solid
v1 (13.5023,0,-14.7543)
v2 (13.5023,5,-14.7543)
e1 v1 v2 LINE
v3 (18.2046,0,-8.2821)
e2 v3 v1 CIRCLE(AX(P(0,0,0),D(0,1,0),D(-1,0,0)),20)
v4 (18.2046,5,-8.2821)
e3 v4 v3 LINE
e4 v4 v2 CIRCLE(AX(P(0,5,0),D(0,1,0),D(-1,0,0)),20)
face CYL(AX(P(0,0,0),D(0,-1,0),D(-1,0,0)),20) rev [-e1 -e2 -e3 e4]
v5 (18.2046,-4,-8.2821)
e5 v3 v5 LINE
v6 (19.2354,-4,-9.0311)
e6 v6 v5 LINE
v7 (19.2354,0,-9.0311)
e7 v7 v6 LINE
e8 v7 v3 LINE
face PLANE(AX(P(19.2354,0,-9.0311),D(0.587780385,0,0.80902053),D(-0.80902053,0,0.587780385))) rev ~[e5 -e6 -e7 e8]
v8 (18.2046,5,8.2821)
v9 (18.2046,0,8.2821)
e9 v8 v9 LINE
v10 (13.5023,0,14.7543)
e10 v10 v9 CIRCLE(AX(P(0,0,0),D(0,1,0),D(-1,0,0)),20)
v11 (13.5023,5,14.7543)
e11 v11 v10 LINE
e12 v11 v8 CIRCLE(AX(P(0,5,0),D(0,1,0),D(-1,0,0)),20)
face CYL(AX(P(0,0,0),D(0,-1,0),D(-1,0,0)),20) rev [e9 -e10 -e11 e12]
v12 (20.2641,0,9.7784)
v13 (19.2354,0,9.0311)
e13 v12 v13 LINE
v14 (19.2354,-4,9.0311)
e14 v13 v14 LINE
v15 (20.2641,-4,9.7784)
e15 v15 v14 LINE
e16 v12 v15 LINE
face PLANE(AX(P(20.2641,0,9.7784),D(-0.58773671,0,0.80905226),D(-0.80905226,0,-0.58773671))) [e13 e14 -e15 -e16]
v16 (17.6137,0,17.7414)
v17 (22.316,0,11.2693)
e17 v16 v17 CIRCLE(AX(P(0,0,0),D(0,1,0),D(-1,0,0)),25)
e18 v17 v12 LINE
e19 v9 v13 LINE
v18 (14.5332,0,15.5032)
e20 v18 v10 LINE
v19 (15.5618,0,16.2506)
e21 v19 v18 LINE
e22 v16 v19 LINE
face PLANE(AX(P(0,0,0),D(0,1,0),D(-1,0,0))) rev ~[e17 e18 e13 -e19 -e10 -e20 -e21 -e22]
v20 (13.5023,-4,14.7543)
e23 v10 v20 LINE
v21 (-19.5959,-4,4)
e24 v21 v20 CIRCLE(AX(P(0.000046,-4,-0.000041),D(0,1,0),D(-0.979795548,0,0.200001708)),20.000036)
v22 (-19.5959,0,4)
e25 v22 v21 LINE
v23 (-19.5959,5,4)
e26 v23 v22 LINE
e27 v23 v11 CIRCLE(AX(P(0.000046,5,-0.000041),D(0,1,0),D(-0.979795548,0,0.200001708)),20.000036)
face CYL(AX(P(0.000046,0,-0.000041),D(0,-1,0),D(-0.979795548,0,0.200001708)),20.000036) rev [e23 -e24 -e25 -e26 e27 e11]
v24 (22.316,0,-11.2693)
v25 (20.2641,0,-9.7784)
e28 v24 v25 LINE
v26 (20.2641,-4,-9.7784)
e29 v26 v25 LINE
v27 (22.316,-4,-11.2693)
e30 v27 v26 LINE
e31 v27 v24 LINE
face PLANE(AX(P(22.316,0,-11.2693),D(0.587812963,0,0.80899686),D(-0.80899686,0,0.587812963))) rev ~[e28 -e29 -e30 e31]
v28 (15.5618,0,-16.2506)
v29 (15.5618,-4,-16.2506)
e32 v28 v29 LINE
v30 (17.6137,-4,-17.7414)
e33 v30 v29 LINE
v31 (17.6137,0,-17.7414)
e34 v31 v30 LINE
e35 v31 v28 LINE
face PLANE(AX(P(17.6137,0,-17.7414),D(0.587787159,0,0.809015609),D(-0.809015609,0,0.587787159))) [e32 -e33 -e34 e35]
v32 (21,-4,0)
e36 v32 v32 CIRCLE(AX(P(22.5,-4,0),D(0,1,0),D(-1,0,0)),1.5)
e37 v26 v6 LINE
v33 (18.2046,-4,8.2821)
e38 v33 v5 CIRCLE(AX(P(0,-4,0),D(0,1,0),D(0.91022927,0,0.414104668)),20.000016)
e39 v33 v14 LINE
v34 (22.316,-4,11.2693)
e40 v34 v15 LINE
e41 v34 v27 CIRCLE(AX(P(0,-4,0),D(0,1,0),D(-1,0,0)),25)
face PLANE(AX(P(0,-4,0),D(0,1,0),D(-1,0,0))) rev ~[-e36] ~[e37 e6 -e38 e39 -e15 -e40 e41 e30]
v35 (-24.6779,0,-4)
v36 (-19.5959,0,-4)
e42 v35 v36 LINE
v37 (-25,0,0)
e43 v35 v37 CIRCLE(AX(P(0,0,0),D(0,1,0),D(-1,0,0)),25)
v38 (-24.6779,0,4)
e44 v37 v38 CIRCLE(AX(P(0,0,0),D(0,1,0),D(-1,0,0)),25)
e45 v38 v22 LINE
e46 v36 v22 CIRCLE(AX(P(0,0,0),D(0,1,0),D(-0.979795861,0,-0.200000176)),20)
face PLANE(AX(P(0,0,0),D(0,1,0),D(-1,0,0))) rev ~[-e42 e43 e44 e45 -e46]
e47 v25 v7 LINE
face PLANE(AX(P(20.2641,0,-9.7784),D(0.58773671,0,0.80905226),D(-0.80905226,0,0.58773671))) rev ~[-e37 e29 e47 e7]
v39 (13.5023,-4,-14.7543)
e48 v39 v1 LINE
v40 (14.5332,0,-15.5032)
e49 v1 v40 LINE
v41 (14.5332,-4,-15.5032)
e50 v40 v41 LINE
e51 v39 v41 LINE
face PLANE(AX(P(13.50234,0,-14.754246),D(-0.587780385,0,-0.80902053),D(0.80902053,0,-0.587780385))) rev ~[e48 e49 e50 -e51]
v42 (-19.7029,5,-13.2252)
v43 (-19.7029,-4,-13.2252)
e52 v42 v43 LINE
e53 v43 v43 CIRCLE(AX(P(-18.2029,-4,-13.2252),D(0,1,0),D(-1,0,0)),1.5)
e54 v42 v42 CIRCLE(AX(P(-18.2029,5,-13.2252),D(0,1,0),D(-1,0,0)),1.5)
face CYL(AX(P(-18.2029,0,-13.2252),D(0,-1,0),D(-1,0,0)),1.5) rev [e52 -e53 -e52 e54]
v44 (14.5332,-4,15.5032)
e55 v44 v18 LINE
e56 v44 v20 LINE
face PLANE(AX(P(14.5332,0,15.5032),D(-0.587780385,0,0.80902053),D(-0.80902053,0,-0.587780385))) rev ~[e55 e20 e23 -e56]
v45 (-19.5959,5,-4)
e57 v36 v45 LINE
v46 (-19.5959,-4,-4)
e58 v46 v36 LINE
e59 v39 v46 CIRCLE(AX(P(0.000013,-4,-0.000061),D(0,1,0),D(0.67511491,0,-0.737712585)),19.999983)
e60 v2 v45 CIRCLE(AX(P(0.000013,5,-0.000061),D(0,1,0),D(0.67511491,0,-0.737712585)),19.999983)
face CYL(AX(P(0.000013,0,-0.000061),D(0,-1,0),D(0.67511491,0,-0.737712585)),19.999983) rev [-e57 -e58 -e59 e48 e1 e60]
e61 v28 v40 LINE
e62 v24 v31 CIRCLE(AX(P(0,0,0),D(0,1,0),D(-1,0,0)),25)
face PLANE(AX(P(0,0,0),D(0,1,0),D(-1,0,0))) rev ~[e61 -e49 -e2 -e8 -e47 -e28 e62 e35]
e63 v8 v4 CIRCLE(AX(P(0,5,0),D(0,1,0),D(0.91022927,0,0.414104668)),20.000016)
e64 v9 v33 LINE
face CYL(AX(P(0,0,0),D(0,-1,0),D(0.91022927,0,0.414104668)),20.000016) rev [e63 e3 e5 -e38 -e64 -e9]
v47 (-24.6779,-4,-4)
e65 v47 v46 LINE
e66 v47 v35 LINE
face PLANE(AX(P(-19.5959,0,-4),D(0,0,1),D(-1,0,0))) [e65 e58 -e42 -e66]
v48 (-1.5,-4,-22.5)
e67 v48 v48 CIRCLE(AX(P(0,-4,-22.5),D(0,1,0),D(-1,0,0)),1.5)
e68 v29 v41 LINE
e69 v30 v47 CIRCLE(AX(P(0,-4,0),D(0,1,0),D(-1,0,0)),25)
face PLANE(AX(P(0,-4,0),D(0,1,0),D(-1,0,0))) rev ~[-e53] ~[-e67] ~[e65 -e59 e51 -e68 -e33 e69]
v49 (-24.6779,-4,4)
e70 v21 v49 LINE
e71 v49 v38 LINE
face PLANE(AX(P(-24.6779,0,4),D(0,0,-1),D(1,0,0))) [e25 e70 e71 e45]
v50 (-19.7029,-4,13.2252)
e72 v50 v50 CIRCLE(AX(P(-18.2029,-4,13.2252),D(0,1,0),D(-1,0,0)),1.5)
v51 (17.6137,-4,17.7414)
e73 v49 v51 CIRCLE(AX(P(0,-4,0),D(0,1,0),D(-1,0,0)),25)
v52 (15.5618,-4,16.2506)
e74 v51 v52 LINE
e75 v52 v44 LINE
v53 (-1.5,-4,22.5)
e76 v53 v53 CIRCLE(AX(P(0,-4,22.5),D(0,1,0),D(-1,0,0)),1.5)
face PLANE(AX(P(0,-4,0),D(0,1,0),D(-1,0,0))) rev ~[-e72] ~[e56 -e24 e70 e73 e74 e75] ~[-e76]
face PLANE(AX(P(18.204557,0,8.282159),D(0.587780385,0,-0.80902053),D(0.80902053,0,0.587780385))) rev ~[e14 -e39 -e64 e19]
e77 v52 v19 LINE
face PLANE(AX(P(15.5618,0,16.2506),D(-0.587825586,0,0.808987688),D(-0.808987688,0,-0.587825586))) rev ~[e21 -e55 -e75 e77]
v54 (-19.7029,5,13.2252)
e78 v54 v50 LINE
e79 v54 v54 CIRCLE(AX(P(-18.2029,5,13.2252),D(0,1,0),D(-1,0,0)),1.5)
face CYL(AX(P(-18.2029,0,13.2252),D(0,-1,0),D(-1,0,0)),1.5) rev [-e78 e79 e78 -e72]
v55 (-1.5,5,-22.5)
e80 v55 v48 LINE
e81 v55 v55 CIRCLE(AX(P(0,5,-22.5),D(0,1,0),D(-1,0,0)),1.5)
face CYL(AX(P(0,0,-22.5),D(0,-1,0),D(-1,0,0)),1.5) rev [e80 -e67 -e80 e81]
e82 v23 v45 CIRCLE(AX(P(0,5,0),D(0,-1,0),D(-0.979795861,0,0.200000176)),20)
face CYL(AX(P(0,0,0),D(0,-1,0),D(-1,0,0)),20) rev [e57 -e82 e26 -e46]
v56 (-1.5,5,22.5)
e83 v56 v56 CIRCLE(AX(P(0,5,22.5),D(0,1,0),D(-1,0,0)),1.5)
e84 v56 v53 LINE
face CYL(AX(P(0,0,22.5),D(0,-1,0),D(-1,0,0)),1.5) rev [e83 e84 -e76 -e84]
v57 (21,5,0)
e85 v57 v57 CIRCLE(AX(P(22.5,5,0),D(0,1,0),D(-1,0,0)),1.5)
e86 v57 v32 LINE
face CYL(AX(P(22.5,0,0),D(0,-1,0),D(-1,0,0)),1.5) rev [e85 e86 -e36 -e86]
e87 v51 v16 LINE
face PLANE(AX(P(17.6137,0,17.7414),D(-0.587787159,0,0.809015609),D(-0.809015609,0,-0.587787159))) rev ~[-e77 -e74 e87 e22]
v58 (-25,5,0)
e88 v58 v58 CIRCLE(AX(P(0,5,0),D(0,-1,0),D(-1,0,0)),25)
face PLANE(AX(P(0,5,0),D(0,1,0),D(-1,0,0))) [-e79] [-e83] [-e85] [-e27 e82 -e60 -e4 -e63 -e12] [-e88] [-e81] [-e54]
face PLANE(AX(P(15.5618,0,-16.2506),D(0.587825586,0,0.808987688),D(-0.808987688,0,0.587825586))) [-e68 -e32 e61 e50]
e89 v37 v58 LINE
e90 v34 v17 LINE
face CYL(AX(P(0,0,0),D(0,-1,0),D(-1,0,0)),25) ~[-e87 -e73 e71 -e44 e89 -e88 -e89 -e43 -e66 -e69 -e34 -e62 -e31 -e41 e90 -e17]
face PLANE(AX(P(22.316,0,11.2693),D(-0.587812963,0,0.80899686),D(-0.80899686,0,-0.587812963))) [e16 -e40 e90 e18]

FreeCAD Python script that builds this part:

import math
import FreeCAD as App
import Part
import Sketcher
from FreeCAD import Vector
Q = App.Units.Quantity

doc = App.newDocument("Part")
params = doc.addObject("Spreadsheet::Sheet", "Params")
for row, (alias, value) in enumerate([
    ("sketch1_diameter", "3 mm"),
    ("sketch1_radius", "25 mm"),
    ("sketch1_radius2", "20 mm"),
    ("pad1_length", "5 mm"),
    ("pad1_length2", "4 mm"),
    ("sketch2_radius", "25 mm"),
    ("sketch2_radius2", "20 mm"),
    ("pad2_length", "5 mm"),
], start=1):
    params.set(f"A{row}", alias)
    params.set(f"B{row}", "=" + value)
    params.setAlias(f"B{row}", alias)

body = doc.addObject("PartDesign::Body", "Body")
body.AllowCompound = True

# Sketch on XZ plane
sketch1 = body.newObject("Sketcher::SketchObject", "Sketch")
sketch1.AttachmentSupport = (doc.getObject("XZ_Plane"), [""])
sketch1.MapMode = "FlatFace"
sketch1.addGeometry(Part.LineSegment(Vector(-19.6, 4, 0), Vector(-24.7, 4, 0)), False)
sketch1.addGeometry(Part.ArcOfCircle(Part.Circle(Vector(0, 0, 0), Vector(0, 0, 1), 25), math.radians(45), math.radians(171)), False)
sketch1.addGeometry(Part.LineSegment(Vector(17.6, 17.7, 0), Vector(15.6, 16.3, 0)), False)
sketch1.addGeometry(Part.LineSegment(Vector(15.6, 16.3, 0), Vector(14.5, 15.5, 0)), False)
sketch1.addGeometry(Part.LineSegment(Vector(14.5, 15.5, 0), Vector(13.5, 14.8, 0)), False)
sketch1.addGeometry(Part.ArcOfCircle(Part.Circle(Vector(0, 0, 0), Vector(0, 0, 1), 20), math.radians(48), math.radians(168)), False)
sketch1.addGeometry(Part.Circle(Vector(0, 22.5, 0), Vector(0, 0, 1), 1.5), False)
sketch1.addGeometry(Part.Circle(Vector(-18.2, 13.2, 0), Vector(0, 0, 1), 1.5), False)
sketch1.addGeometry(Part.ArcOfCircle(Part.Circle(Vector(0, 0, 0), Vector(0, 0, 1), 25), math.radians(-171), math.radians(-45)), False)
sketch1.addGeometry(Part.LineSegment(Vector(-24.7, -4, 0), Vector(-19.6, -4, 0)), False)
sketch1.addGeometry(Part.ArcOfCircle(Part.Circle(Vector(0, 0, 0), Vector(0, 0, 1), 20), math.radians(-168), math.radians(-48)), False)
sketch1.addGeometry(Part.LineSegment(Vector(13.5, -14.8, 0), Vector(14.5, -15.5, 0)), False)
sketch1.addGeometry(Part.LineSegment(Vector(14.5, -15.5, 0), Vector(15.6, -16.3, 0)), False)
sketch1.addGeometry(Part.LineSegment(Vector(15.6, -16.3, 0), Vector(17.6, -17.7, 0)), False)
sketch1.addGeometry(Part.Circle(Vector(0, -22.5, 0), Vector(0, 0, 1), 1.5), False)
sketch1.addGeometry(Part.Circle(Vector(-18.2, -13.2, 0), Vector(0, 0, 1), 1.5), False)
sketch1.addGeometry(Part.LineSegment(Vector(20.3, 9.8, 0), Vector(22.3, 11.3, 0)), False)
sketch1.addGeometry(Part.ArcOfCircle(Part.Circle(Vector(0, 0, 0), Vector(0, 0, 1), 25), math.radians(-27), math.radians(27)), False)
sketch1.addGeometry(Part.LineSegment(Vector(22.3, -11.3, 0), Vector(20.3, -9.8, 0)), False)
sketch1.addGeometry(Part.LineSegment(Vector(20.3, -9.8, 0), Vector(19.2, -9, 0)), False)
sketch1.addGeometry(Part.LineSegment(Vector(19.2, -9, 0), Vector(18.2, -8.3, 0)), False)
sketch1.addGeometry(Part.ArcOfCircle(Part.Circle(Vector(0, 0, 0), Vector(0, 0, 1), 20), math.radians(-24), math.radians(24)), False)
sketch1.addGeometry(Part.LineSegment(Vector(18.2, 8.3, 0), Vector(19.2, 9, 0)), False)
sketch1.addGeometry(Part.LineSegment(Vector(19.2, 9, 0), Vector(20.3, 9.8, 0)), False)
sketch1.addGeometry(Part.Circle(Vector(22.5, 0, 0), Vector(0, 0, 1), 1.5), False)
sketch1.addConstraint(Sketcher.Constraint("Coincident", 0, 2, 1, 2))
sketch1.addConstraint(Sketcher.Constraint("Coincident", 1, 1, 2, 1))
sketch1.addConstraint(Sketcher.Constraint("Coincident", 2, 2, 3, 1))
sketch1.addConstraint(Sketcher.Constraint("Coincident", 3, 2, 4, 1))
sketch1.addConstraint(Sketcher.Constraint("Coincident", 4, 2, 5, 1))
sketch1.addConstraint(Sketcher.Constraint("Coincident", 5, 2, 0, 1))
sketch1.addConstraint(Sketcher.Constraint("Coincident", 8, 1, 9, 1))
sketch1.addConstraint(Sketcher.Constraint("Coincident", 9, 2, 10, 1))
sketch1.addConstraint(Sketcher.Constraint("Coincident", 10, 2, 11, 1))
sketch1.addConstraint(Sketcher.Constraint("Coincident", 11, 2, 12, 1))
sketch1.addConstraint(Sketcher.Constraint("Coincident", 12, 2, 13, 1))
sketch1.addConstraint(Sketcher.Constraint("Coincident", 13, 2, 8, 2))
sketch1.addConstraint(Sketcher.Constraint("Coincident", 16, 2, 17, 2))
sketch1.addConstraint(Sketcher.Constraint("Coincident", 17, 1, 18, 1))
sketch1.addConstraint(Sketcher.Constraint("Coincident", 18, 2, 19, 1))
sketch1.addConstraint(Sketcher.Constraint("Coincident", 19, 2, 20, 1))
sketch1.addConstraint(Sketcher.Constraint("Coincident", 20, 2, 21, 1))
sketch1.addConstraint(Sketcher.Constraint("Coincident", 21, 2, 22, 1))
sketch1.addConstraint(Sketcher.Constraint("Coincident", 22, 2, 23, 1))
sketch1.addConstraint(Sketcher.Constraint("Coincident", 23, 2, 16, 1))
sketch1.addConstraint(Sketcher.Constraint("Horizontal", 0))
sketch1.addConstraint(Sketcher.Constraint("Horizontal", 9))
sketch1.addConstraint(Sketcher.Constraint("Coincident", 1, 3, -1, 1))
sketch1.addConstraint(Sketcher.Constraint("Coincident", 5, 3, -1, 1))
sketch1.addConstraint(Sketcher.Constraint("Coincident", 8, 3, -1, 1))
sketch1.addConstraint(Sketcher.Constraint("Coincident", 10, 3, -1, 1))
sketch1.addConstraint(Sketcher.Constraint("Coincident", 17, 3, -1, 1))
sketch1.addConstraint(Sketcher.Constraint("Coincident", 21, 3, -1, 1))
sketch1.addConstraint(Sketcher.Constraint("Equal", 6, 7))
sketch1.addConstraint(Sketcher.Constraint("Equal", 1, 8))
sketch1.addConstraint(Sketcher.Constraint("Equal", 5, 10))
sketch1.addConstraint(Sketcher.Constraint("Equal", 7, 14))
sketch1.addConstraint(Sketcher.Constraint("Equal", 14, 15))
sketch1.addConstraint(Sketcher.Constraint("Equal", 8, 17))
sketch1.addConstraint(Sketcher.Constraint("Equal", 10, 21))
sketch1.addConstraint(Sketcher.Constraint("Equal", 15, 24))
sketch1.addConstraint(Sketcher.Constraint("Symmetric", 6, 3, 14, 3, -1, 1))
sketch1.addConstraint(Sketcher.Constraint("Symmetric", 7, 3, 15, 3, -1))
sketch1.addConstraint(Sketcher.Constraint("Symmetric", 3, 2, 11, 2, -1))
sketch1.addConstraint(Sketcher.Constraint("Symmetric", 2, 2, 12, 2, -1))
sketch1.addConstraint(Sketcher.Constraint("Symmetric", 19, 2, 22, 2, -1))
sketch1.addConstraint(Sketcher.Constraint("Symmetric", 18, 2, 23, 2, -1))
sketch1.addConstraint(Sketcher.Constraint("PointOnObject", 6, 3, -2))
sketch1.addConstraint(Sketcher.Constraint("PointOnObject", 24, 3, -1))
sketch1.addConstraint(Sketcher.Constraint("Parallel", 2, 3))
sketch1.addConstraint(Sketcher.Constraint("Parallel", 3, 4))
sketch1.addConstraint(Sketcher.Constraint("Parallel", 11, 12))
sketch1.addConstraint(Sketcher.Constraint("Parallel", 12, 13))
sketch1.addConstraint(Sketcher.Constraint("Parallel", 4, 16))
sketch1.addConstraint(Sketcher.Constraint("Parallel", 13, 18))
sketch1.addConstraint(Sketcher.Constraint("Parallel", 18, 19))
sketch1.addConstraint(Sketcher.Constraint("Parallel", 19, 20))
sketch1.addConstraint(Sketcher.Constraint("Parallel", 16, 22))
sketch1.addConstraint(Sketcher.Constraint("Vertical", 0, 2, 8, 1))
sketch1.addConstraint(Sketcher.Constraint("Equal", 13, 16))
sketch1.addConstraint(Sketcher.Constraint("Equal", 12, 19))
sketch1.addConstraint(Sketcher.Constraint("Equal", 11, 20))
sketch1.addConstraint(Sketcher.Constraint("Diameter", 6, 3.0))
sketch1.addConstraint(Sketcher.Constraint("Radius", 1, 25.0))
sketch1.addConstraint(Sketcher.Constraint("Angle", 11, Q("-35.9997 deg")))
sketch1.addConstraint(Sketcher.Constraint("Radius", 5, 20.0))
sketch1.addConstraint(Sketcher.Constraint("DistanceY", -1, 1, 0, 2, 4.0))
sketch1.addConstraint(Sketcher.Constraint("DistanceY", -1, 1, 6, 3, 22.5))
sketch1.addConstraint(Sketcher.Constraint("DistanceX", -1, 1, 24, 3, 22.5))
sketch1.addConstraint(Sketcher.Constraint("DistanceX", 7, 3, -1, 1, 18.203))
sketch1.addConstraint(Sketcher.Constraint("DistanceX", -1, 1, 16, 2, 22.316))
sketch1.addConstraint(Sketcher.Constraint("DistanceX", -1, 1, 18, 2, 20.264))
sketch1.addConstraint(Sketcher.Constraint("DistanceY", 19, 2, -1, 1, 9.031))
sketch1.addConstraint(Sketcher.Constraint("DistanceY", -1, 1, 7, 3, 13.2252))
sketch1.setExpression("Constraints[57]", "Params.sketch1_diameter")
sketch1.setExpression("Constraints[58]", "Params.sketch1_radius")
sketch1.setExpression("Constraints[60]", "Params.sketch1_radius2")
pad1 = body.newObject("PartDesign::Pad", "Pad")
pad1.Profile = sketch1
pad1.Type = "TwoLengths"
pad1.setExpression("Length", "Params.pad1_length")
pad1.setExpression("Length2", "Params.pad1_length2")
pad1.Reversed = True

# Sketch on XZ plane
sketch2 = body.newObject("Sketcher::SketchObject", "Sketch001")
sketch2.AttachmentSupport = (doc.getObject("XZ_Plane"), [""])
sketch2.MapMode = "FlatFace"
sketch2.addGeometry(Part.ArcOfCircle(Part.Circle(Vector(0, 0, 0), Vector(0, 0, 1), 25), math.radians(170.79), math.radians(189.21)), False)
sketch2.addGeometry(Part.LineSegment(Vector(-24.7, 4, 0), Vector(-19.6, 4, 0)), False)
sketch2.addGeometry(Part.ArcOfCircle(Part.Circle(Vector(0, 0, 0), Vector(0, 0, 1), 20), math.radians(168), math.radians(192)), False)
sketch2.addGeometry(Part.LineSegment(Vector(-19.6, -4, 0), Vector(-24.7, -4, 0)), False)
sketch2.addGeometry(Part.LineSegment(Vector(15.6, 16.3, 0), Vector(17.6, 17.7, 0)), False)
sketch2.addGeometry(Part.ArcOfCircle(Part.Circle(Vector(0, 0, 0), Vector(0, 0, 1), 25), math.radians(26.79), math.radians(45.21)), False)
sketch2.addGeometry(Part.LineSegment(Vector(22.3, 11.3, 0), Vector(20.3, 9.8, 0)), False)
sketch2.addGeometry(Part.LineSegment(Vector(20.3, 9.8, 0), Vector(19.2, 9, 0)), False)
sketch2.addGeometry(Part.LineSegment(Vector(19.2, 9, 0), Vector(18.2, 8.3, 0)), False)
sketch2.addGeometry(Part.ArcOfCircle(Part.Circle(Vector(0, 0, 0), Vector(0, 0, 1), 20), math.radians(24), math.radians(48)), False)
sketch2.addGeometry(Part.LineSegment(Vector(13.5, 14.8, 0), Vector(14.5, 15.5, 0)), False)
sketch2.addGeometry(Part.LineSegment(Vector(14.5, 15.5, 0), Vector(15.6, 16.3, 0)), False)
sketch2.addGeometry(Part.ArcOfCircle(Part.Circle(Vector(0, 0, 0), Vector(0, 0, 1), 25), math.radians(-45.21), math.radians(-26.79)), False)
sketch2.addGeometry(Part.LineSegment(Vector(17.6, -17.7, 0), Vector(15.6, -16.3, 0)), False)
sketch2.addGeometry(Part.LineSegment(Vector(15.6, -16.3, 0), Vector(14.5, -15.5, 0)), False)
sketch2.addGeometry(Part.LineSegment(Vector(14.5, -15.5, 0), Vector(13.5, -14.8, 0)), False)
sketch2.addGeometry(Part.ArcOfCircle(Part.Circle(Vector(0, 0, 0), Vector(0, 0, 1), 20), math.radians(-48), math.radians(-24)), False)
sketch2.addGeometry(Part.LineSegment(Vector(18.2, -8.3, 0), Vector(19.2, -9, 0)), False)
sketch2.addGeometry(Part.LineSegment(Vector(19.2, -9, 0), Vector(20.3, -9.8, 0)), False)
sketch2.addGeometry(Part.LineSegment(Vector(20.3, -9.8, 0), Vector(22.3, -11.3, 0)), False)
sketch2.addConstraint(Sketcher.Constraint("Coincident", 0, 1, 1, 1))
sketch2.addConstraint(Sketcher.Constraint("Coincident", 1, 2, 2, 1))
sketch2.addConstraint(Sketcher.Constraint("Coincident", 2, 2, 3, 1))
sketch2.addConstraint(Sketcher.Constraint("Coincident", 3, 2, 0, 2))
sketch2.addConstraint(Sketcher.Constraint("Coincident", 4, 2, 5, 2))
sketch2.addConstraint(Sketcher.Constraint("Coincident", 5, 1, 6, 1))
sketch2.addConstraint(Sketcher.Constraint("Coincident", 6, 2, 7, 1))
sketch2.addConstraint(Sketcher.Constraint("Coincident", 7, 2, 8, 1))
sketch2.addConstraint(Sketcher.Constraint("Coincident", 8, 2, 9, 1))
sketch2.addConstraint(Sketcher.Constraint("Coincident", 9, 2, 10, 1))
sketch2.addConstraint(Sketcher.Constraint("Coincident", 10, 2, 11, 1))
sketch2.addConstraint(Sketcher.Constraint("Coincident", 11, 2, 4, 1))
sketch2.addConstraint(Sketcher.Constraint("Coincident", 12, 1, 13, 1))
sketch2.addConstraint(Sketcher.Constraint("Coincident", 13, 2, 14, 1))
sketch2.addConstraint(Sketcher.Constraint("Coincident", 14, 2, 15, 1))
sketch2.addConstraint(Sketcher.Constraint("Coincident", 15, 2, 16, 1))
sketch2.addConstraint(Sketcher.Constraint("Coincident", 16, 2, 17, 1))
sketch2.addConstraint(Sketcher.Constraint("Coincident", 17, 2, 18, 1))
sketch2.addConstraint(Sketcher.Constraint("Coincident", 18, 2, 19, 1))
sketch2.addConstraint(Sketcher.Constraint("Coincident", 19, 2, 12, 2))
sketch2.addConstraint(Sketcher.Constraint("Horizontal", 1))
sketch2.addConstraint(Sketcher.Constraint("Horizontal", 3))
sketch2.addConstraint(Sketcher.Constraint("Coincident", 0, 3, -1, 1))
sketch2.addConstraint(Sketcher.Constraint("Coincident", 2, 3, -1, 1))
sketch2.addConstraint(Sketcher.Constraint("Coincident", 5, 3, -1, 1))
sketch2.addConstraint(Sketcher.Constraint("Coincident", 9, 3, -1, 1))
sketch2.addConstraint(Sketcher.Constraint("Coincident", 12, 3, -1, 1))
sketch2.addConstraint(Sketcher.Constraint("Coincident", 16, 3, -1, 1))
sketch2.addConstraint(Sketcher.Constraint("Equal", 0, 5))
sketch2.addConstraint(Sketcher.Constraint("Equal", 2, 9))
sketch2.addConstraint(Sketcher.Constraint("Equal", 5, 12))
sketch2.addConstraint(Sketcher.Constraint("Equal", 9, 16))
sketch2.addConstraint(Sketcher.Constraint("Symmetric", 11, 2, 13, 2, -1))
sketch2.addConstraint(Sketcher.Constraint("Symmetric", 10, 2, 14, 2, -1))
sketch2.addConstraint(Sketcher.Constraint("Symmetric", 7, 2, 17, 2, -1))
sketch2.addConstraint(Sketcher.Constraint("Symmetric", 6, 2, 18, 2, -1))
sketch2.addConstraint(Sketcher.Constraint("Parallel", 4, 6))
sketch2.addConstraint(Sketcher.Constraint("Parallel", 6, 7))
sketch2.addConstraint(Sketcher.Constraint("Parallel", 7, 8))
sketch2.addConstraint(Sketcher.Constraint("Parallel", 8, 10))
sketch2.addConstraint(Sketcher.Constraint("Parallel", 10, 11))
sketch2.addConstraint(Sketcher.Constraint("Parallel", 13, 14))
sketch2.addConstraint(Sketcher.Constraint("Parallel", 14, 15))
sketch2.addConstraint(Sketcher.Constraint("Parallel", 15, 17))
sketch2.addConstraint(Sketcher.Constraint("Parallel", 18, 19))
sketch2.addConstraint(Sketcher.Constraint("Vertical", 1, 2, 2, 2))
sketch2.addConstraint(Sketcher.Constraint("Equal", 4, 6))
sketch2.addConstraint(Sketcher.Constraint("Equal", 8, 10))
sketch2.addConstraint(Sketcher.Constraint("Equal", 7, 11))
sketch2.addConstraint(Sketcher.Constraint("Radius", 0, 25.0))
sketch2.addConstraint(Sketcher.Constraint("Angle", 4, Q("36.0001 deg")))
sketch2.addConstraint(Sketcher.Constraint("Radius", 2, 20.0))
sketch2.addConstraint(Sketcher.Constraint("DistanceY", -1, 1, 0, 1, 4.0))
sketch2.addConstraint(Sketcher.Constraint("DistanceX", -1, 1, 5, 1, 22.316))
sketch2.addConstraint(Sketcher.Constraint("DistanceX", -1, 1, 6, 2, 20.264))
sketch2.addConstraint(Sketcher.Constraint("DistanceY", -1, 1, 7, 2, 9.031))
sketch2.setExpression("Constraints[49]", "Params.sketch2_radius")
sketch2.setExpression("Constraints[51]", "Params.sketch2_radius2")
pad2 = body.newObject("PartDesign::Pad", "Pad001")
pad2.Profile = sketch2
pad2.setExpression("Length", "Params.pad2_length")
pad2.Reversed = True

doc.recompute()
